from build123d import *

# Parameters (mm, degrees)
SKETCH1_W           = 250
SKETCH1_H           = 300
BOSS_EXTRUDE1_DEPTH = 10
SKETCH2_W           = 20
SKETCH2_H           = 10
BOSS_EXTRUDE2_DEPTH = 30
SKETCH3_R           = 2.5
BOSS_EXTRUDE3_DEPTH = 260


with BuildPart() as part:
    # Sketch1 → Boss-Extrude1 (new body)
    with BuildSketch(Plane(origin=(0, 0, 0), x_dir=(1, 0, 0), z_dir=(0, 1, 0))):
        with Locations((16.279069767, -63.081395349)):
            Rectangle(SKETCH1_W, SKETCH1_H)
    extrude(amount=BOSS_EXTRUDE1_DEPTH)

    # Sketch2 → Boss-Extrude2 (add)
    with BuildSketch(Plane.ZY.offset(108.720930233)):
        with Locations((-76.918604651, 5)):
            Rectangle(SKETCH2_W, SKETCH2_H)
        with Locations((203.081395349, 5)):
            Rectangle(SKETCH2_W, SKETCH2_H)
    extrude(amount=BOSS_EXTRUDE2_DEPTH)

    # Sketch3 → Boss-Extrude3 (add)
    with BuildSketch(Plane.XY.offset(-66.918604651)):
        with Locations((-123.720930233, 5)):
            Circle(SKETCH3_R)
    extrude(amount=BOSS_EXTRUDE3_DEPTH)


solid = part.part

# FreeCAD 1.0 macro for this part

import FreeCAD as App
import Part
import Sketcher
from FreeCAD import Vector
Q = App.Units.Quantity

doc = App.newDocument("Part")
body = doc.addObject("PartDesign::Body", "Body")

sketch1 = body.newObject("Sketcher::SketchObject", "Sketch")
sketch1.AttachmentSupport = (doc.getObject("XZ_Plane"), [""])
sketch1.MapMode = "FlatFace"
sketch1.addGeometry([
    Part.LineSegment(Vector(-109, -87, 0), Vector(-109, 213, 0)),
    Part.LineSegment(Vector(-109, 213, 0), Vector(141, 213, 0)),
    Part.LineSegment(Vector(141, 213, 0), Vector(141, -87, 0)),
    Part.LineSegment(Vector(141, -87, 0), Vector(-109, -87, 0)),
], False)
sketch1.addConstraint([
    Sketcher.Constraint("Coincident", 0, 2, 1, 1),
    Sketcher.Constraint("Coincident", 1, 2, 2, 1),
    Sketcher.Constraint("Coincident", 2, 2, 3, 1),
    Sketcher.Constraint("Coincident", 3, 2, 0, 1),
    Sketcher.Constraint("Vertical", 0),
    Sketcher.Constraint("Horizontal", 1),
    Sketcher.Constraint("Vertical", 2),
    Sketcher.Constraint("Horizontal", 3),
    Sketcher.Constraint("DistanceX", 1, 1, 1, 2, Q("250 mm")),
    Sketcher.Constraint("DistanceY", 0, 1, 0, 2, Q("300 mm")),
    Sketcher.Constraint("DistanceX", 0, 2, -1, 1, Q("108.72093 mm")),
    Sketcher.Constraint("DistanceY", -1, 1, 0, 2, Q("213.081395 mm")),
])
pad1 = body.newObject("PartDesign::Pad", "Pad")
pad1.Profile = sketch1
pad1.Length = 10
pad1.Reversed = True

sketch2 = body.newObject("Sketcher::SketchObject", "Sketch001")
sketch2.AttachmentSupport = (doc.getObject("YZ_Plane"), [""])
sketch2.MapMode = "FlatFace"
sketch2.AttachmentOffset = App.Placement(Vector(0, 0, -108.72093), App.Rotation())
sketch2.addGeometry([
    Part.LineSegment(Vector(10, -87, 0), Vector(0, -87, 0)),
    Part.LineSegment(Vector(0, -87, 0), Vector(0, -67, 0)),
    Part.LineSegment(Vector(0, -67, 0), Vector(10, -67, 0)),
    Part.LineSegment(Vector(10, -67, 0), Vector(10, -87, 0)),
    Part.LineSegment(Vector(10, 193, 0), Vector(0, 193, 0)),
    Part.LineSegment(Vector(0, 193, 0), Vector(0, 213, 0)),
    Part.LineSegment(Vector(0, 213, 0), Vector(10, 213, 0)),
    Part.LineSegment(Vector(10, 213, 0), Vector(10, 193, 0)),
], False)
sketch2.addConstraint([
    Sketcher.Constraint("Coincident", 0, 2, 1, 1),
    Sketcher.Constraint("Coincident", 1, 2, 2, 1),
    Sketcher.Constraint("Coincident", 2, 2, 3, 1),
    Sketcher.Constraint("Coincident", 3, 2, 0, 1),
    Sketcher.Constraint("Coincident", 4, 2, 5, 1),
    Sketcher.Constraint("Coincident", 5, 2, 6, 1),
    Sketcher.Constraint("Coincident", 6, 2, 7, 1),
    Sketcher.Constraint("Coincident", 7, 2, 4, 1),
    Sketcher.Constraint("Horizontal", 0),
    Sketcher.Constraint("Vertical", 1),
    Sketcher.Constraint("Horizontal", 2),
    Sketcher.Constraint("Vertical", 3),
    Sketcher.Constraint("Horizontal", 4),
    Sketcher.Constraint("Vertical", 5),
    Sketcher.Constraint("Horizontal", 6),
    Sketcher.Constraint("Vertical", 7),
    Sketcher.Constraint("PointOnObject", 0, 2, -2),
    Sketcher.Constraint("PointOnObject", 4, 2, -2),
    Sketcher.Constraint("Vertical", 3, 2, 6, 2),
    Sketcher.Constraint("Equal", 3, 5),
    Sketcher.Constraint("DistanceX", 0, 2, 0, 1, Q("10 mm")),
    Sketcher.Constraint("DistanceY", 1, 1, 1, 2, Q("20 mm")),
    Sketcher.Constraint("DistanceY", 1, 2, 4, 2, Q("260 mm")),
    Sketcher.Constraint("DistanceY", 0, 2, -1, 1, Q("86.918605 mm")),
])
pad2 = body.newObject("PartDesign::Pad", "Pad001")
pad2.Profile = sketch2
pad2.Length = 30
pad2.Reversed = True

sketch3 = body.newObject("Sketcher::SketchObject", "Sketch002")
sketch3.AttachmentSupport = (doc.getObject("XY_Plane"), [""])
sketch3.MapMode = "FlatFace"
sketch3.AttachmentOffset = App.Placement(Vector(0, 0, -66.918605), App.Rotation())
sketch3.addGeometry(Part.Circle(Vector(-123.7, 5, 0), Vector(0, 0, 1), 2.5), False)
sketch3.addConstraint([
    Sketcher.Constraint("Diameter", 0, Q("5 mm")),
    Sketcher.Constraint("DistanceY", -1, 1, 0, 3, Q("5 mm")),
    Sketcher.Constraint("DistanceX", 0, 3, -1, 1, Q("123.72093 mm")),
])
pad3 = body.newObject("PartDesign::Pad", "Pad002")
pad3.Profile = sketch3
pad3.Length = 260

doc.recompute()
